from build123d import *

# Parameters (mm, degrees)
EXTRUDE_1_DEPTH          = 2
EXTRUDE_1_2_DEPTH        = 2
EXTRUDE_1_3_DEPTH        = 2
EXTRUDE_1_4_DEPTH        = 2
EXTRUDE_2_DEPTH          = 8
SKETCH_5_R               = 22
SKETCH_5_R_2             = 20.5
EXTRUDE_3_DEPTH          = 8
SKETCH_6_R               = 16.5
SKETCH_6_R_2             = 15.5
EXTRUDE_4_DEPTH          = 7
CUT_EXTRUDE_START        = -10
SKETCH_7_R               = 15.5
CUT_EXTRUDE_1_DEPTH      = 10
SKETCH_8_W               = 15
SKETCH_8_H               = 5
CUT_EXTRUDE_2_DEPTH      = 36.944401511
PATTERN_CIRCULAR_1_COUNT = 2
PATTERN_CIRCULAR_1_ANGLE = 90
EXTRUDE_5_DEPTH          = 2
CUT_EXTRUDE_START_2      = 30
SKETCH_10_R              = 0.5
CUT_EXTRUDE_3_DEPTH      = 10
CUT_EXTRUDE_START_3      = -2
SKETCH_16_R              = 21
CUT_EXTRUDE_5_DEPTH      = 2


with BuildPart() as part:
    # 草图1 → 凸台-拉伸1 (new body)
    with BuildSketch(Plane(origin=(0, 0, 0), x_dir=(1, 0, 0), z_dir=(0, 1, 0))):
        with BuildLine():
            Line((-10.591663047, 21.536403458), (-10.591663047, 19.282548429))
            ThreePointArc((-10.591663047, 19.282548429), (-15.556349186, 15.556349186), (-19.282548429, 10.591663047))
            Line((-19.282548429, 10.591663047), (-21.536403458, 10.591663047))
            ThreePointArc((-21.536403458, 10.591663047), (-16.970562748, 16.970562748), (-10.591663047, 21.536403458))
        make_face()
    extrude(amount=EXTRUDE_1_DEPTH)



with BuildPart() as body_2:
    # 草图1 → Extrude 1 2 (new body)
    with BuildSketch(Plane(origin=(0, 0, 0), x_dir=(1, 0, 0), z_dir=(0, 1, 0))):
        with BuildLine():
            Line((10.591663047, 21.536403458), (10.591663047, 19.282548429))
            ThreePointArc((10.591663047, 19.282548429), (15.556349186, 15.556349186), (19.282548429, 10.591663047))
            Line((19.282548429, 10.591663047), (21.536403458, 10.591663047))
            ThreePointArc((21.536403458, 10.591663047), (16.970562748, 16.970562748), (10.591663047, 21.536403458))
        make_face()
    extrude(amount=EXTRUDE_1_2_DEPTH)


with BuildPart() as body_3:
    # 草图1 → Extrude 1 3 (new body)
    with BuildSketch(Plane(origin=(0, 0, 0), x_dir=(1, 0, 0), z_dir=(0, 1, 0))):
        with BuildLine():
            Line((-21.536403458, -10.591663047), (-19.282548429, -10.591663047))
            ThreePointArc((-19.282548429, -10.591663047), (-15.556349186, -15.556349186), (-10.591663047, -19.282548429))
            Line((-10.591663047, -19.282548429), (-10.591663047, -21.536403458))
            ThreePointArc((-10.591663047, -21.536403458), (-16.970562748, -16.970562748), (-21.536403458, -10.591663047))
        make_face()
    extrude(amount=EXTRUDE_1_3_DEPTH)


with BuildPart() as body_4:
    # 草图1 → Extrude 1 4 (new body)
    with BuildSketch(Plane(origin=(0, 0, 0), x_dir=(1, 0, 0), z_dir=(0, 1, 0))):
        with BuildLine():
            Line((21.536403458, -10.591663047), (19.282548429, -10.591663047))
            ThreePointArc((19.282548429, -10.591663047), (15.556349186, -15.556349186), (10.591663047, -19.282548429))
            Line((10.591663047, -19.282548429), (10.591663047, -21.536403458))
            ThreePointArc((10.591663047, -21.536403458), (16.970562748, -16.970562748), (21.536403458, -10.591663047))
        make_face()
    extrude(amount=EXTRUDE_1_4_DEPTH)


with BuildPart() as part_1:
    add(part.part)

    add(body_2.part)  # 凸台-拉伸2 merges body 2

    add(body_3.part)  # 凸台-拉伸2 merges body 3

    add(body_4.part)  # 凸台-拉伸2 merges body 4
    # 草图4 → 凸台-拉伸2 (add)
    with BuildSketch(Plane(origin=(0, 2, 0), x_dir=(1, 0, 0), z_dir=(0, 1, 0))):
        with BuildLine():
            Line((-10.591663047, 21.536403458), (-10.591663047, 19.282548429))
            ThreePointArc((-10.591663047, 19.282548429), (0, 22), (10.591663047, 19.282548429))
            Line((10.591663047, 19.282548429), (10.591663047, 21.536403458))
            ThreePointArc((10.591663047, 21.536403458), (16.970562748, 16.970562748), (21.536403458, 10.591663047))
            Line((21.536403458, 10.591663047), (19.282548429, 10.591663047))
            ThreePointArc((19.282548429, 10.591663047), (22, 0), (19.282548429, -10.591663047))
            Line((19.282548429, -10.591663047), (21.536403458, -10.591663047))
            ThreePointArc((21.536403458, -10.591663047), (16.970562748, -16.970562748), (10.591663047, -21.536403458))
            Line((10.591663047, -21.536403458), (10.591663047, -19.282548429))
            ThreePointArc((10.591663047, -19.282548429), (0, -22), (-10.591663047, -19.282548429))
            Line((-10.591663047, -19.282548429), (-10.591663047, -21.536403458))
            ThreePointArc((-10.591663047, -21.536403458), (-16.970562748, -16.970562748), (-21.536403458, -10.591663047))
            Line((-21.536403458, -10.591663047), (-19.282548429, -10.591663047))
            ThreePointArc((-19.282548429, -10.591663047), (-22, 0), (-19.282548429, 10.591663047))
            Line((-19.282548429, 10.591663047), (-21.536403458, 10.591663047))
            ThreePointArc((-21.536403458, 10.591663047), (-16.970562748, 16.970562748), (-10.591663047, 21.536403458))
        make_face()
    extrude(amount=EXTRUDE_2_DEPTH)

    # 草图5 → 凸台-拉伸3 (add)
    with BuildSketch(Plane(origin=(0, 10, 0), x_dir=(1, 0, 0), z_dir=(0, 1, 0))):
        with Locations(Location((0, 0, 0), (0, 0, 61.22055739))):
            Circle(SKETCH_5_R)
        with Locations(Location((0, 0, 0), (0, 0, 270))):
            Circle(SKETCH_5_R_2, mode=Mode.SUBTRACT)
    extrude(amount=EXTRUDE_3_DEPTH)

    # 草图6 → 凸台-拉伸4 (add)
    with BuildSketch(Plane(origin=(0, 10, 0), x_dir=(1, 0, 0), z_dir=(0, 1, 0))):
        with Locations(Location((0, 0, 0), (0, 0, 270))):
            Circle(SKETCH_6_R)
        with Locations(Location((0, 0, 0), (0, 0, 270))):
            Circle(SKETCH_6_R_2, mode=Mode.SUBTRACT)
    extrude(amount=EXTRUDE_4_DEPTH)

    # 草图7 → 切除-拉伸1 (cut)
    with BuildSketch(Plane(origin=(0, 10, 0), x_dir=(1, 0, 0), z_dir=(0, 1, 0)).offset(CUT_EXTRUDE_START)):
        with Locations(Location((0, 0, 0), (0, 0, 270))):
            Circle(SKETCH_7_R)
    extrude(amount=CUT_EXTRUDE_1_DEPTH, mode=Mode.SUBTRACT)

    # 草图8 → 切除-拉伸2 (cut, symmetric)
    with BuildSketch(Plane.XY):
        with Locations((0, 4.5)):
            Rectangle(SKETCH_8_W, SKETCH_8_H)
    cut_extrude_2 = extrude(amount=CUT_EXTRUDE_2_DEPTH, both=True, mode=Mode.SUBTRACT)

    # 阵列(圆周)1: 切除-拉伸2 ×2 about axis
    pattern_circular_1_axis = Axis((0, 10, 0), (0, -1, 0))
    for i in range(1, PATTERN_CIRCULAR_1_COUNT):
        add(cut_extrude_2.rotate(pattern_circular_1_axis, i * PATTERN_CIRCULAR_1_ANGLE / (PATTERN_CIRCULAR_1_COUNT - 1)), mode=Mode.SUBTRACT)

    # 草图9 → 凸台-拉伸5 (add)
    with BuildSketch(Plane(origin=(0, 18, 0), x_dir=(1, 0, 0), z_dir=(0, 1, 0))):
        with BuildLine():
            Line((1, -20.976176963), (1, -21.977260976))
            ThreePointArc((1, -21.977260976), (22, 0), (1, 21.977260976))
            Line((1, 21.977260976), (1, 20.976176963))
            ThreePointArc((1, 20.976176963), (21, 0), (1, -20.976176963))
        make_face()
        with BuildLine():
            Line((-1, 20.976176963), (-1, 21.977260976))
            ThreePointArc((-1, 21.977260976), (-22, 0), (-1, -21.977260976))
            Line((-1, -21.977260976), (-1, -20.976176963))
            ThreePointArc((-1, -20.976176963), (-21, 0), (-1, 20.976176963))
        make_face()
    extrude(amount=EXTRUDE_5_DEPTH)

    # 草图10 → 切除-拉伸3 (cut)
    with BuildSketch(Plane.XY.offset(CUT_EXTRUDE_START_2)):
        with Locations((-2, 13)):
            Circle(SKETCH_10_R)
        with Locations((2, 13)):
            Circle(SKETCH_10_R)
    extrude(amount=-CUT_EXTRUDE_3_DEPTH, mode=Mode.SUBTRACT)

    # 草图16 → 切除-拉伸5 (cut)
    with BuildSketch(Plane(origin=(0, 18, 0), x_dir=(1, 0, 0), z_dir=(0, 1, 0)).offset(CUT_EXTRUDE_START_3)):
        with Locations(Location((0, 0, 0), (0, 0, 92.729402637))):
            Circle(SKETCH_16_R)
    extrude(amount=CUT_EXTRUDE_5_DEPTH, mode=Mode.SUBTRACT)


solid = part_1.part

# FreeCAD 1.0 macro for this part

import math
import FreeCAD as App
import Part
import Sketcher
from FreeCAD import Vector


def add_polygon(sketch, points):
    """Adds a closed chain of lines whose ends are joined by coincident constraints."""
    first, n = sketch.GeometryCount, len(points)
    for a, b in zip(points, points[1:] + points[:1]):
        sketch.addGeometry(Part.LineSegment(App.Vector(*a, 0), App.Vector(*b, 0)), False)
    for i in range(n):
        sketch.addConstraint(Sketcher.Constraint("Coincident", first + i, 2, first + (i + 1) % n, 1))

doc = App.newDocument("Part")
body = doc.addObject("PartDesign::Body", "Body")

# Sketch on XZ plane
sketch1 = body.newObject("Sketcher::SketchObject", "Sketch")
sketch1.AttachmentSupport = (doc.getObject("XZ_Plane"), [""])
sketch1.MapMode = "FlatFace"
sketch1.addGeometry([
    Part.LineSegment(Vector(-10.6, -19.3, 0), Vector(-10.6, -21.5, 0)),
    Part.ArcOfCircle(Part.Circle(Vector(0, 0, 0), Vector(0, 0, 1), 24), math.radians(-154), math.radians(-116)),
    Part.LineSegment(Vector(-21.5, -10.6, 0), Vector(-19.3, -10.6, 0)),
    Part.ArcOfCircle(Part.Circle(Vector(0, 0, 0), Vector(0, 0, 1), 22), math.radians(-151), math.radians(-119)),
], False)
sketch1.addConstraint([
    Sketcher.Constraint("Coincident", 0, 2, 1, 2),
    Sketcher.Constraint("Coincident", 1, 1, 2, 1),
    Sketcher.Constraint("Coincident", 2, 2, 3, 1),
    Sketcher.Constraint("Coincident", 3, 2, 0, 1),
    Sketcher.Constraint("Vertical", 0),
    Sketcher.Constraint("Horizontal", 2),
    Sketcher.Constraint("Coincident", 1, 3, -1, 1),
    Sketcher.Constraint("Coincident", 3, 3, -1, 1),
    Sketcher.Constraint("Equal", 2, 0),
    Sketcher.Constraint("Radius", 1, 24.0),
    Sketcher.Constraint("Radius", 3, 22.0),
    Sketcher.Constraint("DistanceX", 2, 1, 2, 2, 2.253855),
])
pad1 = body.newObject("PartDesign::Pad", "Pad")
pad1.Profile = sketch1
pad1.Length = 2
pad1.Reversed = True
body2 = doc.addObject("PartDesign::Body", "Body001")

# Sketch on XZ plane
sketch2 = body2.newObject("Sketcher::SketchObject", "Sketch001")
sketch2.AttachmentSupport = (doc.getObject("XZ_Plane001"), [""])
sketch2.MapMode = "FlatFace"
sketch2.addGeometry([
    Part.LineSegment(Vector(10.6, -21.5, 0), Vector(10.6, -19.3, 0)),
    Part.ArcOfCircle(Part.Circle(Vector(0, 0, 0), Vector(0, 0, 1), 22), math.radians(-61), math.radians(-29)),
    Part.LineSegment(Vector(19.3, -10.6, 0), Vector(21.5, -10.6, 0)),
    Part.ArcOfCircle(Part.Circle(Vector(0, 0, 0), Vector(0, 0, 1), 24), math.radians(-64), math.radians(-26)),
], False)
sketch2.addConstraint([
    Sketcher.Constraint("Coincident", 0, 2, 1, 1),
    Sketcher.Constraint("Coincident", 1, 2, 2, 1),
    Sketcher.Constraint("Coincident", 2, 2, 3, 2),
    Sketcher.Constraint("Coincident", 3, 1, 0, 1),
    Sketcher.Constraint("Vertical", 0),
    Sketcher.Constraint("Horizontal", 2),
    Sketcher.Constraint("Coincident", 1, 3, -1, 1),
    Sketcher.Constraint("Coincident", 3, 3, -1, 1),
    Sketcher.Constraint("Equal", 2, 0),
    Sketcher.Constraint("Radius", 1, 22.0),
    Sketcher.Constraint("Radius", 3, 24.0),
    Sketcher.Constraint("DistanceX", 2, 1, 2, 2, 2.253855),
])
pad2 = body2.newObject("PartDesign::Pad", "Pad001")
pad2.Profile = sketch2
pad2.Length = 2
pad2.Reversed = True
body3 = doc.addObject("PartDesign::Body", "Body002")

# Sketch on XZ plane
sketch3 = body3.newObject("Sketcher::SketchObject", "Sketch002")
sketch3.AttachmentSupport = (doc.getObject("XZ_Plane002"), [""])
sketch3.MapMode = "FlatFace"
sketch3.addGeometry([
    Part.LineSegment(Vector(-19.3, 10.6, 0), Vector(-21.5, 10.6, 0)),
    Part.ArcOfCircle(Part.Circle(Vector(0, 0, 0), Vector(0, 0, 1), 24), math.radians(116), math.radians(154)),
    Part.LineSegment(Vector(-10.6, 21.5, 0), Vector(-10.6, 19.3, 0)),
    Part.ArcOfCircle(Part.Circle(Vector(0, 0, 0), Vector(0, 0, 1), 22), math.radians(119), math.radians(151)),
], False)
sketch3.addConstraint([
    Sketcher.Constraint("Coincident", 0, 2, 1, 2),
    Sketcher.Constraint("Coincident", 1, 1, 2, 1),
    Sketcher.Constraint("Coincident", 2, 2, 3, 1),
    Sketcher.Constraint("Coincident", 3, 2, 0, 1),
    Sketcher.Constraint("Horizontal", 0),
    Sketcher.Constraint("Vertical", 2),
    Sketcher.Constraint("Coincident", 1, 3, -1, 1),
    Sketcher.Constraint("Coincident", 3, 3, -1, 1),
    Sketcher.Constraint("Equal", 0, 2),
    Sketcher.Constraint("Radius", 1, 24.0),
    Sketcher.Constraint("Radius", 3, 22.0),
    Sketcher.Constraint("DistanceX", 0, 2, 0, 1, 2.253855),
])
pad3 = body3.newObject("PartDesign::Pad", "Pad002")
pad3.Profile = sketch3
pad3.Length = 2
pad3.Reversed = True
body4 = doc.addObject("PartDesign::Body", "Body003")

# Sketch on XZ plane
sketch4 = body4.newObject("Sketcher::SketchObject", "Sketch003")
sketch4.AttachmentSupport = (doc.getObject("XZ_Plane003"), [""])
sketch4.MapMode = "FlatFace"
sketch4.addGeometry([
    Part.LineSegment(Vector(21.5, 10.6, 0), Vector(19.3, 10.6, 0)),
    Part.ArcOfCircle(Part.Circle(Vector(0, 0, 0), Vector(0, 0, 1), 22), math.radians(29), math.radians(61)),
    Part.LineSegment(Vector(10.6, 19.3, 0), Vector(10.6, 21.5, 0)),
    Part.ArcOfCircle(Part.Circle(Vector(0, 0, 0), Vector(0, 0, 1), 24), math.radians(26), math.radians(64)),
], False)
sketch4.addConstraint([
    Sketcher.Constraint("Coincident", 0, 2, 1, 1),
    Sketcher.Constraint("Coincident", 1, 2, 2, 1),
    Sketcher.Constraint("Coincident", 2, 2, 3, 2),
    Sketcher.Constraint("Coincident", 3, 1, 0, 1),
    Sketcher.Constraint("Horizontal", 0),
    Sketcher.Constraint("Vertical", 2),
    Sketcher.Constraint("Coincident", 1, 3, -1, 1),
    Sketcher.Constraint("Coincident", 3, 3, -1, 1),
    Sketcher.Constraint("Equal", 0, 2),
    Sketcher.Constraint("Radius", 1, 22.0),
    Sketcher.Constraint("Radius", 3, 24.0),
    Sketcher.Constraint("DistanceX", 0, 2, 0, 1, 2.253855),
])
pad4 = body4.newObject("PartDesign::Pad", "Pad003")
pad4.Profile = sketch4
pad4.Length = 2
pad4.Reversed = True
body.AllowCompound = True
doc.recompute()

boolean = body.newObject("PartDesign::Boolean", "Boolean")
boolean.Type = "Fuse"
boolean.addObjects([body2])
doc.recompute()

boolean2 = body.newObject("PartDesign::Boolean", "Boolean001")
boolean2.Type = "Fuse"
boolean2.addObjects([body3])
doc.recompute()

boolean3 = body.newObject("PartDesign::Boolean", "Boolean002")
boolean3.Type = "Fuse"
boolean3.addObjects([body4])

# Sketch on XZ plane
sketch5 = body.newObject("Sketcher::SketchObject", "Sketch004")
sketch5.AttachmentSupport = (doc.getObject("XZ_Plane"), [""])
sketch5.MapMode = "FlatFace"
sketch5.AttachmentOffset = App.Placement(Vector(0, 0, -2), App.Rotation())
sketch5.addGeometry([
    Part.LineSegment(Vector(-10.6, -19.3, 0), Vector(-10.6, -21.5, 0)),  # 0
    Part.ArcOfCircle(Part.Circle(Vector(0, 0, 0), Vector(0, 0, 1), 24), math.radians(-154), math.radians(-116)),  # 1
    Part.LineSegment(Vector(-21.5, -10.6, 0), Vector(-19.3, -10.6, 0)),  # 2
    Part.ArcOfCircle(Part.Circle(Vector(0, 0, 0), Vector(0, 0, 1), 22), math.radians(151), math.radians(209)),  # 3
    Part.LineSegment(Vector(-19.3, 10.6, 0), Vector(-21.5, 10.6, 0)),  # 4
    Part.ArcOfCircle(Part.Circle(Vector(0, 0, 0), Vector(0, 0, 1), 24), math.radians(116), math.radians(154)),  # 5
    Part.LineSegment(Vector(-10.6, 21.5, 0), Vector(-10.6, 19.3, 0)),  # 6
    Part.ArcOfCircle(Part.Circle(Vector(0, 0, 0), Vector(0, 0, 1), 22), math.radians(61), math.radians(119)),  # 7
    Part.LineSegment(Vector(10.6, 19.3, 0), Vector(10.6, 21.5, 0)),  # 8
    Part.ArcOfCircle(Part.Circle(Vector(0, 0, 0), Vector(0, 0, 1), 24), math.radians(26), math.radians(64)),  # 9
    Part.LineSegment(Vector(21.5, 10.6, 0), Vector(19.3, 10.6, 0)),  # 10
    Part.ArcOfCircle(Part.Circle(Vector(0, 0, 0), Vector(0, 0, 1), 22), math.radians(-29), math.radians(29)),  # 11
    Part.LineSegment(Vector(19.3, -10.6, 0), Vector(21.5, -10.6, 0)),  # 12
    Part.ArcOfCircle(Part.Circle(Vector(0, 0, 0), Vector(0, 0, 1), 24), math.radians(-64), math.radians(-26)),  # 13
    Part.LineSegment(Vector(10.6, -21.5, 0), Vector(10.6, -19.3, 0)),  # 14
    Part.ArcOfCircle(Part.Circle(Vector(0, 0, 0), Vector(0, 0, 1), 22), math.radians(-119), math.radians(-61)),  # 15
], False)
sketch5.addConstraint([
    Sketcher.Constraint("Coincident", 0, 2, 1, 2),
    Sketcher.Constraint("Coincident", 1, 1, 2, 1),
    Sketcher.Constraint("Coincident", 2, 2, 3, 2),
    Sketcher.Constraint("Coincident", 3, 1, 4, 1),
    Sketcher.Constraint("Coincident", 4, 2, 5, 2),
    Sketcher.Constraint("Coincident", 5, 1, 6, 1),
    Sketcher.Constraint("Coincident", 6, 2, 7, 2),
    Sketcher.Constraint("Coincident", 7, 1, 8, 1),
    Sketcher.Constraint("Coincident", 8, 2, 9, 2),
    Sketcher.Constraint("Coincident", 9, 1, 10, 1),
    Sketcher.Constraint("Coincident", 10, 2, 11, 2),
    Sketcher.Constraint("Coincident", 11, 1, 12, 1),
    Sketcher.Constraint("Coincident", 12, 2, 13, 2),
    Sketcher.Constraint("Coincident", 13, 1, 14, 1),
    Sketcher.Constraint("Coincident", 14, 2, 15, 2),
    Sketcher.Constraint("Coincident", 15, 1, 0, 1),
    Sketcher.Constraint("Vertical", 0),
    Sketcher.Constraint("Horizontal", 2),
    Sketcher.Constraint("Horizontal", 4),
    Sketcher.Constraint("Vertical", 6),
    Sketcher.Constraint("Vertical", 8),
    Sketcher.Constraint("Horizontal", 10),
    Sketcher.Constraint("Horizontal", 12),
    Sketcher.Constraint("Vertical", 14),
    Sketcher.Constraint("Coincident", 1, 3, -1, 1),
    Sketcher.Constraint("Coincident", 3, 3, -1, 1),
    Sketcher.Constraint("Coincident", 5, 3, -1, 1),
    Sketcher.Constraint("Coincident", 7, 3, -1, 1),
    Sketcher.Constraint("Coincident", 9, 3, -1, 1),
    Sketcher.Constraint("Coincident", 11, 3, -1, 1),
    Sketcher.Constraint("Coincident", 13, 3, -1, 1),
    Sketcher.Constraint("Coincident", 15, 3, -1, 1),
    Sketcher.Constraint("Equal", 1, 5),
    Sketcher.Constraint("Equal", 3, 7),
    Sketcher.Constraint("Equal", 5, 9),
    Sketcher.Constraint("Equal", 7, 11),
    Sketcher.Constraint("Equal", 9, 13),
    Sketcher.Constraint("Equal", 11, 15),
    Sketcher.Constraint("Horizontal", 6, 2, 7, 1),
    Sketcher.Constraint("Horizontal", 4, 2, 9, 1),
    Sketcher.Constraint("Horizontal", 2, 2, 11, 1),
    Sketcher.Constraint("Horizontal", 0, 2, 13, 1),
    Sketcher.Constraint("Vertical", 2, 2, 3, 1),
    Sketcher.Constraint("Vertical", 0, 2, 5, 1),
    Sketcher.Constraint("Equal", 12, 0),
    Sketcher.Constraint("Radius", 1, 24.0),
    Sketcher.Constraint("Radius", 3, 22.0),
    Sketcher.Constraint("DistanceX", 2, 1, 2, 2, 2.253855),
])
pad5 = body.newObject("PartDesign::Pad", "Pad004")
pad5.Profile = sketch5
pad5.Length = 8
pad5.Reversed = True

# Sketch on XZ plane
sketch6 = body.newObject("Sketcher::SketchObject", "Sketch005")
sketch6.AttachmentSupport = (doc.getObject("XZ_Plane"), [""])
sketch6.MapMode = "FlatFace"
sketch6.AttachmentOffset = App.Placement(Vector(0, 0, -10), App.Rotation())
sketch6.addGeometry([
    Part.Circle(Vector(0, 0, 0), Vector(0, 0, 1), 22),
    Part.Circle(Vector(0, 0, 0), Vector(0, 0, 1), 20),
], False)
sketch6.addConstraint([
    Sketcher.Constraint("Coincident", 0, 3, -1, 1),
    Sketcher.Constraint("Coincident", 1, 3, -1, 1),
    Sketcher.Constraint("Diameter", 0, 44.0),
    Sketcher.Constraint("Diameter", 1, 41.0),
])
pad6 = body.newObject("PartDesign::Pad", "Pad005")
pad6.Profile = sketch6
pad6.Length = 8
pad6.Reversed = True

# Sketch on XZ plane
sketch7 = body.newObject("Sketcher::SketchObject", "Sketch006")
sketch7.AttachmentSupport = (doc.getObject("XZ_Plane"), [""])
sketch7.MapMode = "FlatFace"
sketch7.AttachmentOffset = App.Placement(Vector(0, 0, -10), App.Rotation())
sketch7.addGeometry([
    Part.Circle(Vector(0, 0, 0), Vector(0, 0, 1), 16),
    Part.Circle(Vector(0, 0, 0), Vector(0, 0, 1), 16),
], False)
sketch7.addConstraint([
    Sketcher.Constraint("Coincident", 0, 3, -1, 1),
    Sketcher.Constraint("Coincident", 1, 3, -1, 1),
    Sketcher.Constraint("Diameter", 0, 33.0),
    Sketcher.Constraint("Diameter", 1, 31.0),
])
pad7 = body.newObject("PartDesign::Pad", "Pad006")
pad7.Profile = sketch7
pad7.Length = 7
pad7.Reversed = True

# Sketch on XZ plane
sketch8 = body.newObject("Sketcher::SketchObject", "Sketch007")
sketch8.AttachmentSupport = (doc.getObject("XZ_Plane"), [""])
sketch8.MapMode = "FlatFace"
sketch8.addGeometry(Part.Circle(Vector(0, 0, 0), Vector(0, 0, 1), 16), False)
sketch8.addConstraint([
    Sketcher.Constraint("Coincident", 0, 3, -1, 1),
    Sketcher.Constraint("Diameter", 0, 31.0),
])
pocket1 = body.newObject("PartDesign::Pocket", "Pocket")
pocket1.Profile = sketch8
pocket1.Length = 10

# Sketch on XY plane
sketch9 = body.newObject("Sketcher::SketchObject", "Sketch008")
sketch9.AttachmentSupport = (doc.getObject("XY_Plane"), [""])
sketch9.MapMode = "FlatFace"
add_polygon(sketch9, [(-8, 7), (-8, 2), (8, 2), (8, 7)])  # lines 0-3
sketch9.addConstraint([
    Sketcher.Constraint("Vertical", 0),
    Sketcher.Constraint("Horizontal", 1),
    Sketcher.Constraint("Vertical", 2),
    Sketcher.Constraint("Horizontal", 3),
    Sketcher.Constraint("DistanceX", 1, 1, 1, 2, 15.0),
    Sketcher.Constraint("DistanceY", 0, 2, 0, 1, 5.0),
    Sketcher.Constraint("DistanceY", -1, 1, 0, 2, 2.0),
    Sketcher.Constraint("DistanceX", 0, 2, -1, 1, 7.5),
])
pocket2 = body.newObject("PartDesign::Pocket", "Pocket001")
pocket2.Profile = sketch9
pocket2.Length = 73.888803
pocket2.Midplane = True
doc.recompute()

polarpattern = body.newObject("PartDesign::PolarPattern", "PolarPattern")
polarpattern.Originals = [pocket2]
polarpattern.Axis = (doc.getObject("Y_Axis"), [""])
polarpattern.Angle = 90
polarpattern.Occurrences = 2
polarpattern.Reversed = True
body.Tip = polarpattern

# Sketch on XZ plane
sketch10 = body.newObject("Sketcher::SketchObject", "Sketch009")
sketch10.AttachmentSupport = (doc.getObject("XZ_Plane"), [""])
sketch10.MapMode = "FlatFace"
sketch10.AttachmentOffset = App.Placement(Vector(0, 0, -18), App.Rotation())
sketch10.addGeometry([
    Part.LineSegment(Vector(1, 21, 0), Vector(1, 22, 0)),  # 0
    Part.ArcOfCircle(Part.Circle(Vector(0, 0, 0), Vector(0, 0, 1), 22), math.radians(-87), math.radians(87)),  # 1
    Part.LineSegment(Vector(1, -22, 0), Vector(1, -21, 0)),  # 2
    Part.ArcOfCircle(Part.Circle(Vector(0, 0, 0), Vector(0, 0, 1), 21), math.radians(-87), math.radians(87)),  # 3
    Part.LineSegment(Vector(-1, -21, 0), Vector(-1, -22, 0)),  # 4
    Part.ArcOfCircle(Part.Circle(Vector(0, 0, 0), Vector(0, 0, 1), 22), math.radians(93), math.radians(267)),  # 5
    Part.LineSegment(Vector(-1, 22, 0), Vector(-1, 21, 0)),  # 6
    Part.ArcOfCircle(Part.Circle(Vector(0, 0, 0), Vector(0, 0, 1), 21), math.radians(93), math.radians(267)),  # 7
], False)
sketch10.addConstraint([
    Sketcher.Constraint("Coincident", 0, 2, 1, 2),
    Sketcher.Constraint("Coincident", 1, 1, 2, 1),
    Sketcher.Constraint("Coincident", 2, 2, 3, 1),
    Sketcher.Constraint("Coincident", 3, 2, 0, 1),
    Sketcher.Constraint("Coincident", 4, 2, 5, 2),
    Sketcher.Constraint("Coincident", 5, 1, 6, 1),
    Sketcher.Constraint("Coincident", 6, 2, 7, 1),
    Sketcher.Constraint("Coincident", 7, 2, 4, 1),
    Sketcher.Constraint("Vertical", 0),
    Sketcher.Constraint("Vertical", 2),
    Sketcher.Constraint("Vertical", 4),
    Sketcher.Constraint("Vertical", 6),
    Sketcher.Constraint("Coincident", 1, 3, -1, 1),
    Sketcher.Constraint("Coincident", 3, 3, -1, 1),
    Sketcher.Constraint("Coincident", 5, 3, -1, 1),
    Sketcher.Constraint("Coincident", 7, 3, -1, 1),
    Sketcher.Constraint("Equal", 1, 5),
    Sketcher.Constraint("Equal", 3, 7),
    Sketcher.Constraint("Horizontal", 1, 1, 4, 2),
    Sketcher.Constraint("Horizontal", 0, 2, 5, 1),
    Sketcher.Constraint("Vertical", 0, 2, 1, 1),
    Sketcher.Constraint("Radius", 1, 22.0),
    Sketcher.Constraint("Radius", 3, 21.0),
    Sketcher.Constraint("DistanceX", -1, 1, 0, 2, 1.0),
])
pad8 = body.newObject("PartDesign::Pad", "Pad007")
pad8.Profile = sketch10
pad8.Length = 2
pad8.Reversed = True

# Sketch on XY plane
sketch11 = body.newObject("Sketcher::SketchObject", "Sketch010")
sketch11.AttachmentSupport = (doc.getObject("XY_Plane"), [""])
sketch11.MapMode = "FlatFace"
sketch11.AttachmentOffset = App.Placement(Vector(0, 0, 30), App.Rotation())
sketch11.addGeometry([
    Part.Circle(Vector(-2, 13, 0), Vector(0, 0, 1), 0.5),
    Part.Circle(Vector(2, 13, 0), Vector(0, 0, 1), 0.5),
], False)
sketch11.addConstraint([
    Sketcher.Constraint("Equal", 0, 1),
    Sketcher.Constraint("Symmetric", 0, 3, 1, 3, -2),
    Sketcher.Constraint("Diameter", 0, 1.0),
    Sketcher.Constraint("DistanceX", 0, 3, -1, 1, 2.0),
    Sketcher.Constraint("DistanceY", -1, 1, 0, 3, 13.0),
])
pocket3 = body.newObject("PartDesign::Pocket", "Pocket002")
pocket3.Profile = sketch11
pocket3.Length = 10

# Sketch on XZ plane
sketch12 = body.newObject("Sketcher::SketchObject", "Sketch011")
sketch12.AttachmentSupport = (doc.getObject("XZ_Plane"), [""])
sketch12.MapMode = "FlatFace"
sketch12.AttachmentOffset = App.Placement(Vector(0, 0, -16), App.Rotation())
sketch12.addGeometry(Part.Circle(Vector(0, 0, 0), Vector(0, 0, 1), 21), False)
sketch12.addConstraint([
    Sketcher.Constraint("Coincident", 0, 3, -1, 1),
    Sketcher.Constraint("Diameter", 0, 42.0),
])
pocket4 = body.newObject("PartDesign::Pocket", "Pocket003")
pocket4.Profile = sketch12
pocket4.Length = 2

doc.recompute()
